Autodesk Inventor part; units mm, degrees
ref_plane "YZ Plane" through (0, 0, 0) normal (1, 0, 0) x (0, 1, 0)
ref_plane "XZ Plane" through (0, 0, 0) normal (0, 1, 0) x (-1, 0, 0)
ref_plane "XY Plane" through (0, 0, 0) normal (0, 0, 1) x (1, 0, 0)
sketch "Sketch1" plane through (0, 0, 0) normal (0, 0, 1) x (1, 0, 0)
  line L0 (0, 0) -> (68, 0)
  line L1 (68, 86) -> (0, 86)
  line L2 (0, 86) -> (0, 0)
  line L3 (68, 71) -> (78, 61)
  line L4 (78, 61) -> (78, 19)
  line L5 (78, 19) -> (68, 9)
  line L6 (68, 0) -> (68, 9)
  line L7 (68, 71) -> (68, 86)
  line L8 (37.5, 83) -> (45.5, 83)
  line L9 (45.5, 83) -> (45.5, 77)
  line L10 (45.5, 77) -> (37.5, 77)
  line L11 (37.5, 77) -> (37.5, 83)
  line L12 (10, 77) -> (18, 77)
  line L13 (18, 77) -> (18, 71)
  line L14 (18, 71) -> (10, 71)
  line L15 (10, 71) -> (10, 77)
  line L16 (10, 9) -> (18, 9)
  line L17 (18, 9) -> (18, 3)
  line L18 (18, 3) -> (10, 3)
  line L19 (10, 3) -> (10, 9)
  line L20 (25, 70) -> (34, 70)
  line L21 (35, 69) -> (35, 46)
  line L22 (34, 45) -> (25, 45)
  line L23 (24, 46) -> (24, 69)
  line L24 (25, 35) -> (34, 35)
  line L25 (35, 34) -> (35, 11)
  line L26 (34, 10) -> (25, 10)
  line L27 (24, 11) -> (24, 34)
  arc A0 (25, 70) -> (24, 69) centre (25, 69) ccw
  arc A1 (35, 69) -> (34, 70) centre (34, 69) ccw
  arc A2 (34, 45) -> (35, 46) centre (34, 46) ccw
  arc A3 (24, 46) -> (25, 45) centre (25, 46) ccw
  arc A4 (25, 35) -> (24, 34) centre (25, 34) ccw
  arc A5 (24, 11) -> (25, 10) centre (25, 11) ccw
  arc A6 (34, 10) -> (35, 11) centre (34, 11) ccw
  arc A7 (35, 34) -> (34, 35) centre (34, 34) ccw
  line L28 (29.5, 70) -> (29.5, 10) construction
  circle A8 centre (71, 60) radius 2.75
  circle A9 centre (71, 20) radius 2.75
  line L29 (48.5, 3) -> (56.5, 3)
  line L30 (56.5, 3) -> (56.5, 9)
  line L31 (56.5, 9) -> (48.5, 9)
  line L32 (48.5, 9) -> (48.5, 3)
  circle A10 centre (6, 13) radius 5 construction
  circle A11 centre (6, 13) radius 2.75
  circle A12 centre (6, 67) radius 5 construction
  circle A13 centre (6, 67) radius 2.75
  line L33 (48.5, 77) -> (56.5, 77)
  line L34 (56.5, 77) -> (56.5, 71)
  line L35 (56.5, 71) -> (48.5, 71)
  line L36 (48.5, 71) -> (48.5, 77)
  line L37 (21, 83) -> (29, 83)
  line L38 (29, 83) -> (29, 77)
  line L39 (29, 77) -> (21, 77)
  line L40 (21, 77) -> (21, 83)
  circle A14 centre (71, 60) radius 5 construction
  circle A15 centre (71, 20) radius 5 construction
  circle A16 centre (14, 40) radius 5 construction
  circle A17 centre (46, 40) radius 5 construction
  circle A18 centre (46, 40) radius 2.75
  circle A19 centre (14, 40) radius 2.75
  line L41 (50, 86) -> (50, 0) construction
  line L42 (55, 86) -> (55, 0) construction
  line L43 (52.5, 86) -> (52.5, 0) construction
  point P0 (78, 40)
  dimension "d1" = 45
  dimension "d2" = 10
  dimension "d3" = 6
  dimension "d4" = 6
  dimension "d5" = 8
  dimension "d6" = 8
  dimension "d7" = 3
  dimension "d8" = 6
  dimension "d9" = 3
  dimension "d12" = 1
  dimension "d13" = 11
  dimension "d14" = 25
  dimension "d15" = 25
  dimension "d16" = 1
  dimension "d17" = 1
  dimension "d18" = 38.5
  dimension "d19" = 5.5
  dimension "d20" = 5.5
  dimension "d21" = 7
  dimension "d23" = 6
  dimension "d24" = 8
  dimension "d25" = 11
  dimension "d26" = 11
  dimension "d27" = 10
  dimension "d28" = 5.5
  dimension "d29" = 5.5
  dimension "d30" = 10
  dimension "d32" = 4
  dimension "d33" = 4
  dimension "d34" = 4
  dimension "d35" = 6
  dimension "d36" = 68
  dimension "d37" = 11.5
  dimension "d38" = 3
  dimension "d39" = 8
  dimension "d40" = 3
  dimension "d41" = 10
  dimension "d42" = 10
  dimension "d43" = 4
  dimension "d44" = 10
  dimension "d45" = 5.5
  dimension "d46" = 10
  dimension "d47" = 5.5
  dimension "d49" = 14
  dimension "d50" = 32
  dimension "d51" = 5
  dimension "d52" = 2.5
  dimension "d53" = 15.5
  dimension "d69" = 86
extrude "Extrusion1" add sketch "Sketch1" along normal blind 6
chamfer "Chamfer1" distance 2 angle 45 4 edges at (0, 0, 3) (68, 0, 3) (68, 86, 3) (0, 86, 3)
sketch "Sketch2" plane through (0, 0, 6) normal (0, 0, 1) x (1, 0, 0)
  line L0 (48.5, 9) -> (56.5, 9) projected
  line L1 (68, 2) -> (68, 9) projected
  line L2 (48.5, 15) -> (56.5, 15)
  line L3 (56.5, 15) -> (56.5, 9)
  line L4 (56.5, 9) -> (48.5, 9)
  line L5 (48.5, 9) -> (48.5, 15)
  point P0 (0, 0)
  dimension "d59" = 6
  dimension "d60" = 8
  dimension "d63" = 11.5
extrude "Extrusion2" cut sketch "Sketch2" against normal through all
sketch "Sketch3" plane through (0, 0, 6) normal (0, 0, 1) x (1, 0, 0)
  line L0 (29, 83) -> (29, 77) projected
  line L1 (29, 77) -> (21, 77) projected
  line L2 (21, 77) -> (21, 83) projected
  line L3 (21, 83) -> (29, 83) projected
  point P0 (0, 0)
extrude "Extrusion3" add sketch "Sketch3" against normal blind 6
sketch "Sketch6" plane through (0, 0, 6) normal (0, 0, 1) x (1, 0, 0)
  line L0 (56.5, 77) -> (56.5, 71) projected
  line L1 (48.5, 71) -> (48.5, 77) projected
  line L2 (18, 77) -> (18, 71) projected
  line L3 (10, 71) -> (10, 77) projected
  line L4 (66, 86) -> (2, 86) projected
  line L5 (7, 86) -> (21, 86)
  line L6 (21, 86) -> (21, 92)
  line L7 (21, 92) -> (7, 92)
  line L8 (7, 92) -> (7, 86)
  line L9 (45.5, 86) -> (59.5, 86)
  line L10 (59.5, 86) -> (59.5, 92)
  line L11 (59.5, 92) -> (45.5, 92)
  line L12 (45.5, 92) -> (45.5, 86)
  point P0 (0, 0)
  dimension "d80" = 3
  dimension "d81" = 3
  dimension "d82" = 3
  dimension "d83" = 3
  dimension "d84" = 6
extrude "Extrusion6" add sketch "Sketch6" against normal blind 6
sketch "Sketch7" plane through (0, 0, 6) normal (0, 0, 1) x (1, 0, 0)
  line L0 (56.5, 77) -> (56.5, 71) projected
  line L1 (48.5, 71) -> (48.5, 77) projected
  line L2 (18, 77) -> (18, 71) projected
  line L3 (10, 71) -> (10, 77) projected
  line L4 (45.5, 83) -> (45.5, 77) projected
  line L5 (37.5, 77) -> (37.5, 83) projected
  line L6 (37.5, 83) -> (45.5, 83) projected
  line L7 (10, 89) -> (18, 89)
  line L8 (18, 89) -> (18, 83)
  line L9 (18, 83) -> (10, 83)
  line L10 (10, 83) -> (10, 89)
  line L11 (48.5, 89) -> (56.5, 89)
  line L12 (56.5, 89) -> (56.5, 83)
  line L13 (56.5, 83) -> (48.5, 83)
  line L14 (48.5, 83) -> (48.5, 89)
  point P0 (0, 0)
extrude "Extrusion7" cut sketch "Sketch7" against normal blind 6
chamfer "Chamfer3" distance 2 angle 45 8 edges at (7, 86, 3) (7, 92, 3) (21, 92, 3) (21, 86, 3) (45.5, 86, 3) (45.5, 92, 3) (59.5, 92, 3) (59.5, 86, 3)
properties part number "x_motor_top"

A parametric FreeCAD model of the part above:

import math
import FreeCAD as App
import Part
import Sketcher
from FreeCAD import Vector


def edges_at(feature, points):
    """Names of the edges that pass closest to the given points."""
    edges = feature.Shape.Edges
    near = lambda p: min(range(len(edges)), key=lambda i: edges[i].distToShape(Part.Vertex(*p))[0])
    return sorted({f"Edge{near(p) + 1}" for p in points})


def add_polygon(sketch, points):
    """Adds a closed chain of lines whose ends are joined by coincident constraints."""
    first, n = sketch.GeometryCount, len(points)
    for a, b in zip(points, points[1:] + points[:1]):
        sketch.addGeometry(Part.LineSegment(App.Vector(*a, 0), App.Vector(*b, 0)), False)
    for i in range(n):
        sketch.addConstraint(Sketcher.Constraint("Coincident", first + i, 2, first + (i + 1) % n, 1))

doc = App.newDocument("Part")
body = doc.addObject("PartDesign::Body", "Body")

sketch1 = doc.addObject("Sketcher::SketchObject", "Sketch")
body.addObject(sketch1)
sketch1.AttachmentSupport = (doc.XY_Plane, [""])
sketch1.MapMode = "FlatFace"
add_polygon(sketch1, [(0, 86), (0, 0), (68, 0), (68, 9), (78, 19), (78, 61), (68, 71), (68, 86)])
add_polygon(sketch1, [(10, 3), (10, 9), (18, 9), (18, 3)])
sketch1.addGeometry(Part.Circle(Vector(6, 13, 0), Vector(0, 0, 1), 2.75), False)
sketch1.addGeometry(Part.Circle(Vector(14, 40, 0), Vector(0, 0, 1), 2.75), False)
sketch1.addGeometry(Part.ArcOfCircle(Part.Circle(Vector(25, 34, 0), Vector(0, 0, 1), 1), math.radians(90), math.radians(180)), False)
sketch1.addGeometry(Part.LineSegment(Vector(25, 35, 0), Vector(34, 35, 0)), False)
sketch1.addGeometry(Part.ArcOfCircle(Part.Circle(Vector(34, 34, 0), Vector(0, 0, 1), 1), math.radians(0), math.radians(90)), False)
sketch1.addGeometry(Part.LineSegment(Vector(35, 34, 0), Vector(35, 11, 0)), False)
sketch1.addGeometry(Part.ArcOfCircle(Part.Circle(Vector(34, 11, 0), Vector(0, 0, 1), 1), math.radians(-90), math.radians(0)), False)
sketch1.addGeometry(Part.LineSegment(Vector(34, 10, 0), Vector(25, 10, 0)), False)
sketch1.addGeometry(Part.ArcOfCircle(Part.Circle(Vector(25, 11, 0), Vector(0, 0, 1), 1), math.radians(180), math.radians(270)), False)
sketch1.addGeometry(Part.LineSegment(Vector(24, 11, 0), Vector(24, 34, 0)), False)
add_polygon(sketch1, [(56.5, 3), (48.5, 3), (48.5, 9), (56.5, 9)])
sketch1.addGeometry(Part.Circle(Vector(71, 20, 0), Vector(0, 0, 1), 2.75), False)
sketch1.addGeometry(Part.Circle(Vector(46, 40, 0), Vector(0, 0, 1), 2.75), False)
sketch1.addGeometry(Part.ArcOfCircle(Part.Circle(Vector(25, 69, 0), Vector(0, 0, 1), 1), math.radians(90), math.radians(180)), False)
sketch1.addGeometry(Part.LineSegment(Vector(25, 70, 0), Vector(34, 70, 0)), False)
sketch1.addGeometry(Part.ArcOfCircle(Part.Circle(Vector(34, 69, 0), Vector(0, 0, 1), 1), math.radians(0), math.radians(90)), False)
sketch1.addGeometry(Part.LineSegment(Vector(35, 69, 0), Vector(35, 46, 0)), False)
sketch1.addGeometry(Part.ArcOfCircle(Part.Circle(Vector(34, 46, 0), Vector(0, 0, 1), 1), math.radians(-90), math.radians(0)), False)
sketch1.addGeometry(Part.LineSegment(Vector(34, 45, 0), Vector(25, 45, 0)), False)
sketch1.addGeometry(Part.ArcOfCircle(Part.Circle(Vector(25, 46, 0), Vector(0, 0, 1), 1), math.radians(180), math.radians(270)), False)
sketch1.addGeometry(Part.LineSegment(Vector(24, 46, 0), Vector(24, 69, 0)), False)
sketch1.addGeometry(Part.Circle(Vector(6, 67, 0), Vector(0, 0, 1), 2.75), False)
add_polygon(sketch1, [(10, 71), (10, 77), (18, 77), (18, 71)])
add_polygon(sketch1, [(21, 77), (21, 83), (29, 83), (29, 77)])
sketch1.addGeometry(Part.Circle(Vector(71, 60, 0), Vector(0, 0, 1), 2.75), False)
add_polygon(sketch1, [(48.5, 71), (48.5, 77), (56.5, 77), (56.5, 71)])
add_polygon(sketch1, [(37.5, 77), (37.5, 83), (45.5, 83), (45.5, 77)])
sketch1.addConstraint(Sketcher.Constraint("Tangent", 14, 1, 15, 1))
sketch1.addConstraint(Sketcher.Constraint("Tangent", 15, 2, 16, 2))
sketch1.addConstraint(Sketcher.Constraint("Tangent", 16, 1, 17, 1))
sketch1.addConstraint(Sketcher.Constraint("Tangent", 17, 2, 18, 2))
sketch1.addConstraint(Sketcher.Constraint("Tangent", 18, 1, 19, 1))
sketch1.addConstraint(Sketcher.Constraint("Tangent", 19, 2, 20, 2))
sketch1.addConstraint(Sketcher.Constraint("Tangent", 20, 1, 21, 1))
sketch1.addConstraint(Sketcher.Constraint("Tangent", 21, 2, 14, 2))
sketch1.addConstraint(Sketcher.Constraint("Tangent", 28, 1, 29, 1))
sketch1.addConstraint(Sketcher.Constraint("Tangent", 29, 2, 30, 2))
sketch1.addConstraint(Sketcher.Constraint("Tangent", 30, 1, 31, 1))
sketch1.addConstraint(Sketcher.Constraint("Tangent", 31, 2, 32, 2))
sketch1.addConstraint(Sketcher.Constraint("Tangent", 32, 1, 33, 1))
sketch1.addConstraint(Sketcher.Constraint("Tangent", 33, 2, 34, 2))
sketch1.addConstraint(Sketcher.Constraint("Tangent", 34, 1, 35, 1))
sketch1.addConstraint(Sketcher.Constraint("Tangent", 35, 2, 28, 2))
sketch1.addConstraint(Sketcher.Constraint("Vertical", 0))
sketch1.addConstraint(Sketcher.Constraint("Horizontal", 1))
sketch1.addConstraint(Sketcher.Constraint("Vertical", 2))
sketch1.addConstraint(Sketcher.Constraint("Vertical", 4))
sketch1.addConstraint(Sketcher.Constraint("Vertical", 6))
sketch1.addConstraint(Sketcher.Constraint("Horizontal", 7))
sketch1.addConstraint(Sketcher.Constraint("Vertical", 8))
sketch1.addConstraint(Sketcher.Constraint("Horizontal", 9))
sketch1.addConstraint(Sketcher.Constraint("Vertical", 10))
sketch1.addConstraint(Sketcher.Constraint("Horizontal", 11))
sketch1.addConstraint(Sketcher.Constraint("Horizontal", 15))
sketch1.addConstraint(Sketcher.Constraint("Vertical", 17))
sketch1.addConstraint(Sketcher.Constraint("Horizontal", 19))
sketch1.addConstraint(Sketcher.Constraint("Vertical", 21))
sketch1.addConstraint(Sketcher.Constraint("Horizontal", 22))
sketch1.addConstraint(Sketcher.Constraint("Vertical", 23))
sketch1.addConstraint(Sketcher.Constraint("Horizontal", 24))
sketch1.addConstraint(Sketcher.Constraint("Vertical", 25))
sketch1.addConstraint(Sketcher.Constraint("Horizontal", 29))
sketch1.addConstraint(Sketcher.Constraint("Vertical", 31))
sketch1.addConstraint(Sketcher.Constraint("Horizontal", 33))
sketch1.addConstraint(Sketcher.Constraint("Vertical", 35))
sketch1.addConstraint(Sketcher.Constraint("Vertical", 37))
sketch1.addConstraint(Sketcher.Constraint("Horizontal", 38))
sketch1.addConstraint(Sketcher.Constraint("Vertical", 39))
sketch1.addConstraint(Sketcher.Constraint("Horizontal", 40))
sketch1.addConstraint(Sketcher.Constraint("Vertical", 41))
sketch1.addConstraint(Sketcher.Constraint("Horizontal", 42))
sketch1.addConstraint(Sketcher.Constraint("Vertical", 43))
sketch1.addConstraint(Sketcher.Constraint("Horizontal", 44))
sketch1.addConstraint(Sketcher.Constraint("Vertical", 46))
sketch1.addConstraint(Sketcher.Constraint("Horizontal", 47))
sketch1.addConstraint(Sketcher.Constraint("Vertical", 48))
sketch1.addConstraint(Sketcher.Constraint("Horizontal", 49))
sketch1.addConstraint(Sketcher.Constraint("Vertical", 50))
sketch1.addConstraint(Sketcher.Constraint("Horizontal", 51))
sketch1.addConstraint(Sketcher.Constraint("Vertical", 52))
sketch1.addConstraint(Sketcher.Constraint("Horizontal", 53))
sketch1.addConstraint(Sketcher.Constraint("Coincident", 0, 2, -1, 1))
sketch1.addConstraint(Sketcher.Constraint("Equal", 12, 13))
sketch1.addConstraint(Sketcher.Constraint("Equal", 14, 16))
sketch1.addConstraint(Sketcher.Constraint("Equal", 16, 18))
sketch1.addConstraint(Sketcher.Constraint("Equal", 18, 20))
sketch1.addConstraint(Sketcher.Constraint("Equal", 13, 26))
sketch1.addConstraint(Sketcher.Constraint("Equal", 26, 27))
sketch1.addConstraint(Sketcher.Constraint("Equal", 20, 28))
sketch1.addConstraint(Sketcher.Constraint("Equal", 28, 30))
sketch1.addConstraint(Sketcher.Constraint("Equal", 30, 32))
sketch1.addConstraint(Sketcher.Constraint("Equal", 32, 34))
sketch1.addConstraint(Sketcher.Constraint("Equal", 27, 36))
sketch1.addConstraint(Sketcher.Constraint("Equal", 36, 45))
sketch1.addConstraint(Sketcher.Constraint("Perpendicular", 3, 5))
sketch1.addConstraint(Sketcher.Constraint("Horizontal", 13, 3, 27, 3))
sketch1.addConstraint(Sketcher.Constraint("Horizontal", 2, 2, 8, 2))
sketch1.addConstraint(Sketcher.Constraint("Horizontal", 11, 2, 22, 2))
sketch1.addConstraint(Sketcher.Constraint("Horizontal", 9, 2, 23, 2))
sketch1.addConstraint(Sketcher.Constraint("Horizontal", 5, 2, 39, 2))
sketch1.addConstraint(Sketcher.Constraint("Horizontal", 38, 2, 43, 2))
sketch1.addConstraint(Sketcher.Constraint("Horizontal", 44, 2, 46, 2))
sketch1.addConstraint(Sketcher.Constraint("Horizontal", 40, 2, 48, 2))
sketch1.addConstraint(Sketcher.Constraint("Horizontal", 42, 2, 50, 2))
sketch1.addConstraint(Sketcher.Constraint("Horizontal", 47, 2, 52, 2))
sketch1.addConstraint(Sketcher.Constraint("Vertical", 20, 3, 28, 3))
sketch1.addConstraint(Sketcher.Constraint("Vertical", 18, 3, 30, 3))
sketch1.addConstraint(Sketcher.Constraint("Vertical", 12, 3, 36, 3))
sketch1.addConstraint(Sketcher.Constraint("Vertical", 26, 3, 45, 3))
sketch1.addConstraint(Sketcher.Constraint("Vertical", 2, 2, 5, 2))
sketch1.addConstraint(Sketcher.Constraint("Vertical", 11, 2, 37, 2))
sketch1.addConstraint(Sketcher.Constraint("Vertical", 10, 2, 38, 2))
sketch1.addConstraint(Sketcher.Constraint("Vertical", 23, 2, 46, 2))
sketch1.addConstraint(Sketcher.Constraint("Vertical", 25, 2, 47, 2))
sketch1.addConstraint(Sketcher.Constraint("Equal", 11, 22))
sketch1.addConstraint(Sketcher.Constraint("Equal", 40, 42))
sketch1.addConstraint(Sketcher.Constraint("Equal", 49, 51))
sketch1.addConstraint(Sketcher.Constraint("Equal", 33, 2))
sketch1.addConstraint(Sketcher.Constraint("Equal", 21, 31))
sketch1.addConstraint(Sketcher.Constraint("Equal", 25, 37))
sketch1.addConstraint(Sketcher.Constraint("Equal", 39, 41))
sketch1.addConstraint(Sketcher.Constraint("Equal", 3, 5))
sketch1.addConstraint(Sketcher.Constraint("Radius", 14, 1.0))
sketch1.addConstraint(Sketcher.Constraint("Diameter", 12, 5.5))
sketch1.addConstraint(Sketcher.Constraint("DistanceX", 1, 1, 1, 2, 68.0))
sketch1.addConstraint(Sketcher.Constraint("DistanceX", 9, 1, 9, 2, 8.0))
sketch1.addConstraint(Sketcher.Constraint("DistanceY", 0, 2, 0, 1, 86.0))
sketch1.addConstraint(Sketcher.Constraint("DistanceY", 8, 1, 8, 2, 6.0))
sketch1.addConstraint(Sketcher.Constraint("DistanceX", -1, 1, 12, 3, 6.0))
sketch1.addConstraint(Sketcher.Constraint("DistanceX", -1, 1, 13, 3, 14.0))
sketch1.addConstraint(Sketcher.Constraint("DistanceX", -1, 1, 14, 3, 25.0))
sketch1.addConstraint(Sketcher.Constraint("DistanceY", -1, 1, 18, 3, 11.0))
sketch1.addConstraint(Sketcher.Constraint("DistanceX", -1, 1, 8, 2, 10.0))
sketch1.addConstraint(Sketcher.Constraint("DistanceY", -1, 1, 10, 2, 3.0))
sketch1.addConstraint(Sketcher.Constraint("DistanceY", -1, 1, 32, 1, 45.0))
sketch1.addConstraint(Sketcher.Constraint("DistanceY", 4, 1, 4, 2, 42.0))
sketch1.addConstraint(Sketcher.Constraint("DistanceY", 6, 1, 6, 2, 15.0))
sketch1.addConstraint(Sketcher.Constraint("DistanceY", 17, 2, 17, 1, 23.0))
sketch1.addConstraint(Sketcher.Constraint("DistanceY", -1, 1, 12, 3, 13.0))
sketch1.addConstraint(Sketcher.Constraint("DistanceY", -1, 1, 13, 3, 40.0))
sketch1.addConstraint(Sketcher.Constraint("DistanceX", -1, 1, 26, 3, 71.0))
sketch1.addConstraint(Sketcher.Constraint("DistanceY", -1, 1, 26, 3, 20.0))
sketch1.addConstraint(Sketcher.Constraint("DistanceX", -1, 1, 27, 3, 46.0))
sketch1.addConstraint(Sketcher.Constraint("DistanceY", -1, 1, 36, 3, 67.0))
sketch1.addConstraint(Sketcher.Constraint("DistanceY", -1, 1, 45, 3, 60.0))
sketch1.addConstraint(Sketcher.Constraint("DistanceX", -1, 1, 41, 2, 21.0))
sketch1.addConstraint(Sketcher.Constraint("DistanceX", -1, 1, 22, 2, 48.5))
sketch1.addConstraint(Sketcher.Constraint("DistanceX", -1, 1, 50, 2, 37.5))
pad1 = doc.addObject("PartDesign::Pad", "Pad")
body.addObject(pad1)
pad1.Profile = sketch1
pad1.Length = 6
doc.recompute()

chamfer = doc.addObject("PartDesign::Chamfer", "Chamfer")
body.addObject(chamfer)
chamfer.Base = (pad1, edges_at(pad1, [
    (0, 0, 3),
    (68, 0, 3),
    (68, 86, 3),
    (0, 86, 3),
]))
chamfer.Size = 2

sketch2 = doc.addObject("Sketcher::SketchObject", "Sketch001")
body.addObject(sketch2)
sketch2.AttachmentSupport = (doc.XY_Plane, [""])
sketch2.MapMode = "FlatFace"
sketch2.AttachmentOffset = App.Placement(Vector(0, 0, 6), App.Rotation())
add_polygon(sketch2, [(48.5, 15), (48.5, 9), (56.5, 9), (56.5, 15)])
sketch2.addConstraint(Sketcher.Constraint("Vertical", 0))
sketch2.addConstraint(Sketcher.Constraint("Horizontal", 1))
sketch2.addConstraint(Sketcher.Constraint("Vertical", 2))
sketch2.addConstraint(Sketcher.Constraint("Horizontal", 3))
sketch2.addConstraint(Sketcher.Constraint("DistanceX", 1, 1, 1, 2, 8.0))
sketch2.addConstraint(Sketcher.Constraint("DistanceY", 0, 2, 0, 1, 6.0))
sketch2.addConstraint(Sketcher.Constraint("DistanceY", -1, 1, 0, 2, 9.0))
sketch2.addConstraint(Sketcher.Constraint("DistanceX", -1, 1, 0, 2, 48.5))
pocket1 = doc.addObject("PartDesign::Pocket", "Pocket")
body.addObject(pocket1)
pocket1.Profile = sketch2
pocket1.Type = "ThroughAll"

sketch3 = doc.addObject("Sketcher::SketchObject", "Sketch002")
body.addObject(sketch3)
sketch3.AttachmentSupport = (doc.XY_Plane, [""])
sketch3.MapMode = "FlatFace"
sketch3.AttachmentOffset = App.Placement(Vector(0, 0, 6), App.Rotation())
add_polygon(sketch3, [(29, 77), (29, 83), (21, 83), (21, 77)])
sketch3.addConstraint(Sketcher.Constraint("Vertical", 0))
sketch3.addConstraint(Sketcher.Constraint("Horizontal", 1))
sketch3.addConstraint(Sketcher.Constraint("Vertical", 2))
sketch3.addConstraint(Sketcher.Constraint("Horizontal", 3))
sketch3.addConstraint(Sketcher.Constraint("DistanceX", 1, 2, 1, 1, 8.0))
sketch3.addConstraint(Sketcher.Constraint("DistanceY", 0, 1, 0, 2, 6.0))
sketch3.addConstraint(Sketcher.Constraint("DistanceX", -1, 1, 0, 2, 29.0))
sketch3.addConstraint(Sketcher.Constraint("DistanceY", -1, 1, 0, 2, 83.0))
pad2 = doc.addObject("PartDesign::Pad", "Pad001")
body.addObject(pad2)
pad2.Profile = sketch3
pad2.Length = 6
pad2.Reversed = True

sketch4 = doc.addObject("Sketcher::SketchObject", "Sketch003")
body.addObject(sketch4)
sketch4.AttachmentSupport = (doc.XY_Plane, [""])
sketch4.MapMode = "FlatFace"
sketch4.AttachmentOffset = App.Placement(Vector(0, 0, 6), App.Rotation())
add_polygon(sketch4, [(7, 86), (21, 86), (21, 92), (7, 92)])
add_polygon(sketch4, [(45.5, 86), (59.5, 86), (59.5, 92), (45.5, 92)])
sketch4.addConstraint(Sketcher.Constraint("Horizontal", 0))
sketch4.addConstraint(Sketcher.Constraint("Vertical", 1))
sketch4.addConstraint(Sketcher.Constraint("Horizontal", 2))
sketch4.addConstraint(Sketcher.Constraint("Vertical", 3))
sketch4.addConstraint(Sketcher.Constraint("Horizontal", 4))
sketch4.addConstraint(Sketcher.Constraint("Vertical", 5))
sketch4.addConstraint(Sketcher.Constraint("Horizontal", 6))
sketch4.addConstraint(Sketcher.Constraint("Vertical", 7))
sketch4.addConstraint(Sketcher.Constraint("Horizontal", 3, 2, 4, 2))
sketch4.addConstraint(Sketcher.Constraint("Horizontal", 2, 2, 5, 2))
sketch4.addConstraint(Sketcher.Constraint("Equal", 2, 4))
sketch4.addConstraint(Sketcher.Constraint("DistanceY", 1, 1, 1, 2, 6.0))
sketch4.addConstraint(Sketcher.Constraint("DistanceX", 0, 1, 0, 2, 14.0))
sketch4.addConstraint(Sketcher.Constraint("DistanceX", -1, 1, 0, 2, 21.0))
sketch4.addConstraint(Sketcher.Constraint("DistanceY", -1, 1, 0, 2, 86.0))
sketch4.addConstraint(Sketcher.Constraint("DistanceX", -1, 1, 4, 2, 59.5))
pad3 = doc.addObject("PartDesign::Pad", "Pad002")
body.addObject(pad3)
pad3.Profile = sketch4
pad3.Length = 6
pad3.Reversed = True

sketch5 = doc.addObject("Sketcher::SketchObject", "Sketch004")
body.addObject(sketch5)
sketch5.AttachmentSupport = (doc.XY_Plane, [""])
sketch5.MapMode = "FlatFace"
sketch5.AttachmentOffset = App.Placement(Vector(0, 0, 6), App.Rotation())
add_polygon(sketch5, [(18, 89), (10, 89), (10, 83), (18, 83)])
add_polygon(sketch5, [(56.5, 89), (48.5, 89), (48.5, 83), (56.5, 83)])
sketch5.addConstraint(Sketcher.Constraint("Horizontal", 0))
sketch5.addConstraint(Sketcher.Constraint("Vertical", 1))
sketch5.addConstraint(Sketcher.Constraint("Horizontal", 2))
sketch5.addConstraint(Sketcher.Constraint("Vertical", 3))
sketch5.addConstraint(Sketcher.Constraint("Horizontal", 4))
sketch5.addConstraint(Sketcher.Constraint("Vertical", 5))
sketch5.addConstraint(Sketcher.Constraint("Horizontal", 6))
sketch5.addConstraint(Sketcher.Constraint("Vertical", 7))
sketch5.addConstraint(Sketcher.Constraint("Horizontal", 3, 2, 4, 2))
sketch5.addConstraint(Sketcher.Constraint("Horizontal", 2, 2, 5, 2))
sketch5.addConstraint(Sketcher.Constraint("Equal", 2, 4))
sketch5.addConstraint(Sketcher.Constraint("DistanceX", 0, 2, 0, 1, 8.0))
sketch5.addConstraint(Sketcher.Constraint("DistanceY", 1, 2, 1, 1, 6.0))
sketch5.addConstraint(Sketcher.Constraint("DistanceX", -1, 1, 0, 2, 10.0))
sketch5.addConstraint(Sketcher.Constraint("DistanceY", -1, 1, 0, 2, 89.0))
sketch5.addConstraint(Sketcher.Constraint("DistanceX", -1, 1, 4, 2, 48.5))
pocket2 = doc.addObject("PartDesign::Pocket", "Pocket001")
body.addObject(pocket2)
pocket2.Profile = sketch5
pocket2.Length = 6
doc.recompute()

chamfer2 = doc.addObject("PartDesign::Chamfer", "Chamfer001")
body.addObject(chamfer2)
chamfer2.Base = (pocket2, edges_at(pocket2, [
    (7, 86, 3),
    (7, 92, 3),
    (21, 92, 3),
    (21, 86, 3),
    (45.5, 86, 3),
    (45.5, 92, 3),
    (59.5, 92, 3),
    (59.5, 86, 3),
]))
chamfer2.Size = 2

doc.recompute()
